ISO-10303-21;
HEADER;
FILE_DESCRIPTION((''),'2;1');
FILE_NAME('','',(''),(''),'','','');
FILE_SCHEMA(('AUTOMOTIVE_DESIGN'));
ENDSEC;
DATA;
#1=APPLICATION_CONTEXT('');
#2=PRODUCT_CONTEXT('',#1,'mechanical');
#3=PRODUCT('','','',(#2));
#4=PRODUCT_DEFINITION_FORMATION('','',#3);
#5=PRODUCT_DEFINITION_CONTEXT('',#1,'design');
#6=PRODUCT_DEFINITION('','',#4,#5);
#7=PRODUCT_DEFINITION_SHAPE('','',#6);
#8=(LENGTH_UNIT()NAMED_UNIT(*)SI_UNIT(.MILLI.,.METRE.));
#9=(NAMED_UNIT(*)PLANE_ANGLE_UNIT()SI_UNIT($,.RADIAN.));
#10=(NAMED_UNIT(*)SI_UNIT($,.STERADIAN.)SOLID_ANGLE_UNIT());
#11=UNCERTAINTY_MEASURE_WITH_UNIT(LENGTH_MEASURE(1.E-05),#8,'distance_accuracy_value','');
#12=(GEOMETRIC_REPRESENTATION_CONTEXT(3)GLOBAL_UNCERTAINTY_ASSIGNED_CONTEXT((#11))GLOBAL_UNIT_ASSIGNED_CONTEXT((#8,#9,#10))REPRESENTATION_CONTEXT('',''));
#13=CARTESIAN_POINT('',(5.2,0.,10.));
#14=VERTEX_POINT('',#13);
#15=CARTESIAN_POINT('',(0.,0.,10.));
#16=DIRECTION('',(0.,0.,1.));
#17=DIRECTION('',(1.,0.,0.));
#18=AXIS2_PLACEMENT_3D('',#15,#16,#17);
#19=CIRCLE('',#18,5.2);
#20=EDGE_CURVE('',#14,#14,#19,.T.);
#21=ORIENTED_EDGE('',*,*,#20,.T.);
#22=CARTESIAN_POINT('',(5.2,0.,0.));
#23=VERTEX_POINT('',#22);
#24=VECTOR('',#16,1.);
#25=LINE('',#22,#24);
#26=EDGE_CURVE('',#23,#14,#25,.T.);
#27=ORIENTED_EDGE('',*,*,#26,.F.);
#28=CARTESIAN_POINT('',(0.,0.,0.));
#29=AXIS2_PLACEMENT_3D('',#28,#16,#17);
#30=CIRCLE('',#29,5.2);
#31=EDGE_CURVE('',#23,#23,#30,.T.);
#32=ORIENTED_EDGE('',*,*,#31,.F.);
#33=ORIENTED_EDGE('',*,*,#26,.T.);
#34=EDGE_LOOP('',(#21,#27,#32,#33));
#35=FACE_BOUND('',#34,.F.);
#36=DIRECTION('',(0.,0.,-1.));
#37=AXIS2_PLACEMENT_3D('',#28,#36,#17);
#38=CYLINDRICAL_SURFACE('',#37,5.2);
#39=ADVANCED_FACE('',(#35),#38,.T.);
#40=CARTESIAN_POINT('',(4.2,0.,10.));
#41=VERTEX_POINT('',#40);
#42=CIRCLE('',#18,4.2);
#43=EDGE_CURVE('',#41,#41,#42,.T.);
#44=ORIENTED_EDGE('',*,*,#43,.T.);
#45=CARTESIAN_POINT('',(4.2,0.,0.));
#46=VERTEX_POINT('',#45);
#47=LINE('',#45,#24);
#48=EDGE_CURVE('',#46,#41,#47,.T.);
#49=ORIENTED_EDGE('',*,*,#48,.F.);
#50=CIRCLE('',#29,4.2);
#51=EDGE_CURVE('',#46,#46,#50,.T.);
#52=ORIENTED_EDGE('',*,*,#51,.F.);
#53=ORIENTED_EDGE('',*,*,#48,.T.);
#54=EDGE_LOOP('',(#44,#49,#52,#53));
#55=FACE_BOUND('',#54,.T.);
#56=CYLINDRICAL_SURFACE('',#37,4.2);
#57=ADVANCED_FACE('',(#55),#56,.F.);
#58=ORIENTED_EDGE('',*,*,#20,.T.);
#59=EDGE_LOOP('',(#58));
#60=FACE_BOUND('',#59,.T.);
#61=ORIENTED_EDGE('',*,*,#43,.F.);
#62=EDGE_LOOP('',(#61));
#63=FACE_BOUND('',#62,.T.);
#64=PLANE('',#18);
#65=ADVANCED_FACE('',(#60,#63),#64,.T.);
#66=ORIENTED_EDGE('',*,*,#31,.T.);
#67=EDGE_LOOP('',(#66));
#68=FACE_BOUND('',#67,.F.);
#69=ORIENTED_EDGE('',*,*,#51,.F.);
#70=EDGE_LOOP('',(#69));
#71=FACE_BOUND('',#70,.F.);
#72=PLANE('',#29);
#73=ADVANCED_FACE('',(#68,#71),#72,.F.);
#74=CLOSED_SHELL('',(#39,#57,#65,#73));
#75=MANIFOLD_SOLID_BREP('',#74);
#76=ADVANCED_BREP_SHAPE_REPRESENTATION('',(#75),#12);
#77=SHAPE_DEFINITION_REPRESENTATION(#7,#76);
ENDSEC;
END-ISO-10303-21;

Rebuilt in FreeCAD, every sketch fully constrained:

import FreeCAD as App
import Part
import Sketcher

V = App.Vector
Q = App.Units.Quantity

doc = App.newDocument("Part")
body = doc.addObject("PartDesign::Body", "Body")

sketch1 = body.newObject("Sketcher::SketchObject", "Sketch")
sketch1.AttachmentSupport = (doc.getObject("XY_Plane"), [""])
sketch1.MapMode = "FlatFace"
sketch1.addGeometry(Part.Circle(V(0, 0, 0), V(0, 0, 1), 5), False)
sketch1.addConstraint([
    Sketcher.Constraint("Coincident", 0, 3, -1, 1),
    Sketcher.Constraint("Diameter", 0, Q("10.4 mm")),
])
pad1 = body.newObject("PartDesign::Pad", "Pad")
pad1.Profile = sketch1
pad1.Length = 10

sketch2 = body.newObject("Sketcher::SketchObject", "Sketch001")
sketch2.AttachmentSupport = (doc.getObject("XY_Plane"), [""])
sketch2.MapMode = "FlatFace"
sketch2.addGeometry(Part.Circle(V(0, 0, 0), V(0, 0, 1), 4.2), False)
sketch2.addConstraint([
    Sketcher.Constraint("Coincident", 0, 3, -1, 1),
    Sketcher.Constraint("Diameter", 0, Q("8.4 mm")),
])
pocket1 = body.newObject("PartDesign::Pocket", "Pocket")
pocket1.Profile = sketch2
pocket1.Length = 10
pocket1.Reversed = True

doc.recompute()
